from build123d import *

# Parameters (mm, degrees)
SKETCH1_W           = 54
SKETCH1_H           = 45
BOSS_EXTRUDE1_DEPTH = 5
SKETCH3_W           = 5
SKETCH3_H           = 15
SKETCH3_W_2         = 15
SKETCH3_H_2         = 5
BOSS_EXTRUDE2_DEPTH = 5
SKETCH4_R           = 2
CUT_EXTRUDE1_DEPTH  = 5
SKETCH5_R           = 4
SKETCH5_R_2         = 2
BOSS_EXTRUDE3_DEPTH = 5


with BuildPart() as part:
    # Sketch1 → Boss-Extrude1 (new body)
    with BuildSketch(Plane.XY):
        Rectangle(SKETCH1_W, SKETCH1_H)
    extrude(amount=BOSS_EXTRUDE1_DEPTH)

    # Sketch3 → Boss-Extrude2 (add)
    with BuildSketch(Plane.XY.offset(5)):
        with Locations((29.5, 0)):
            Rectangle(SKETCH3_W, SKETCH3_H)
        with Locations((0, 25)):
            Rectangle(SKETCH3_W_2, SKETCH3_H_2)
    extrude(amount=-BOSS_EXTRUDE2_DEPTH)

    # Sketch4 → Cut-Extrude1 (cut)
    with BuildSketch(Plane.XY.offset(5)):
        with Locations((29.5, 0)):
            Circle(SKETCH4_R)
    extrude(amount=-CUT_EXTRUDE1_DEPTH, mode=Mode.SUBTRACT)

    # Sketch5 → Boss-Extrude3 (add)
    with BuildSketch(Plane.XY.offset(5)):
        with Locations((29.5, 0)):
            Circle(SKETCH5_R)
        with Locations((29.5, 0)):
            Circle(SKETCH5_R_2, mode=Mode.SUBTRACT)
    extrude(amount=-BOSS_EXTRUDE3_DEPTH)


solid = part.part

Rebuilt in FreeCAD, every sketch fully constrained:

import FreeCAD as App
import Part
import Sketcher
from FreeCAD import Vector
Q = App.Units.Quantity

doc = App.newDocument("Part")
body = doc.addObject("PartDesign::Body", "Body")

sketch1 = body.newObject("Sketcher::SketchObject", "Sketch")
sketch1.AttachmentSupport = (doc.getObject("XY_Plane"), [""])
sketch1.MapMode = "FlatFace"
sketch1.addGeometry([
    Part.LineSegment(Vector(-27, 22, 0), Vector(-27, -22, 0)),
    Part.LineSegment(Vector(-27, -22, 0), Vector(27, -22, 0)),
    Part.LineSegment(Vector(27, -22, 0), Vector(27, 22, 0)),
    Part.LineSegment(Vector(27, 22, 0), Vector(-27, 22, 0)),
], False)
sketch1.addConstraint([
    Sketcher.Constraint("Coincident", 0, 2, 1, 1),
    Sketcher.Constraint("Coincident", 1, 2, 2, 1),
    Sketcher.Constraint("Coincident", 2, 2, 3, 1),
    Sketcher.Constraint("Coincident", 3, 2, 0, 1),
    Sketcher.Constraint("Vertical", 0),
    Sketcher.Constraint("Horizontal", 1),
    Sketcher.Constraint("Vertical", 2),
    Sketcher.Constraint("Horizontal", 3),
    Sketcher.Constraint("Symmetric", 0, 2, 2, 2, -1, 1),
    Sketcher.Constraint("DistanceX", 1, 1, 1, 2, Q("54 mm")),
    Sketcher.Constraint("DistanceY", 0, 2, 0, 1, Q("45 mm")),
])
pad1 = body.newObject("PartDesign::Pad", "Pad")
pad1.Profile = sketch1
pad1.Length = 5

sketch2 = body.newObject("Sketcher::SketchObject", "Sketch001")
sketch2.AttachmentSupport = (doc.getObject("XY_Plane"), [""])
sketch2.MapMode = "FlatFace"
sketch2.AttachmentOffset = App.Placement(Vector(0, 0, 5), App.Rotation())
sketch2.addGeometry([
    Part.LineSegment(Vector(27, 8, 0), Vector(27, -8, 0)),
    Part.LineSegment(Vector(27, -8, 0), Vector(32, -8, 0)),
    Part.LineSegment(Vector(32, -8, 0), Vector(32, 8, 0)),
    Part.LineSegment(Vector(32, 8, 0), Vector(27, 8, 0)),
    Part.LineSegment(Vector(-8, 28, 0), Vector(-8, 22, 0)),
    Part.LineSegment(Vector(-8, 22, 0), Vector(8, 22, 0)),
    Part.LineSegment(Vector(8, 22, 0), Vector(8, 28, 0)),
    Part.LineSegment(Vector(8, 28, 0), Vector(-8, 28, 0)),
], False)
sketch2.addConstraint([
    Sketcher.Constraint("Coincident", 0, 2, 1, 1),
    Sketcher.Constraint("Coincident", 1, 2, 2, 1),
    Sketcher.Constraint("Coincident", 2, 2, 3, 1),
    Sketcher.Constraint("Coincident", 3, 2, 0, 1),
    Sketcher.Constraint("Coincident", 4, 2, 5, 1),
    Sketcher.Constraint("Coincident", 5, 2, 6, 1),
    Sketcher.Constraint("Coincident", 6, 2, 7, 1),
    Sketcher.Constraint("Coincident", 7, 2, 4, 1),
    Sketcher.Constraint("Vertical", 0),
    Sketcher.Constraint("Horizontal", 1),
    Sketcher.Constraint("Vertical", 2),
    Sketcher.Constraint("Horizontal", 3),
    Sketcher.Constraint("Vertical", 4),
    Sketcher.Constraint("Horizontal", 5),
    Sketcher.Constraint("Vertical", 6),
    Sketcher.Constraint("Horizontal", 7),
    Sketcher.Constraint("Equal", 7, 0),
    Sketcher.Constraint("Equal", 3, 4),
    Sketcher.Constraint("DistanceX", 1, 1, 1, 2, Q("5 mm")),
    Sketcher.Constraint("DistanceX", 5, 1, 5, 2, Q("15 mm")),
    Sketcher.Constraint("DistanceX", -1, 1, 0, 2, Q("27 mm")),
    Sketcher.Constraint("DistanceY", 3, 2, 4, 2, Q("15 mm")),
    Sketcher.Constraint("DistanceY", 0, 2, -1, 1, Q("7.5 mm")),
    Sketcher.Constraint("DistanceX", 4, 2, -1, 1, Q("7.5 mm")),
])
pad2 = body.newObject("PartDesign::Pad", "Pad001")
pad2.Profile = sketch2
pad2.Length = 5
pad2.Reversed = True

sketch3 = body.newObject("Sketcher::SketchObject", "Sketch002")
sketch3.AttachmentSupport = (doc.getObject("XY_Plane"), [""])
sketch3.MapMode = "FlatFace"
sketch3.AttachmentOffset = App.Placement(Vector(0, 0, 5), App.Rotation())
sketch3.addGeometry(Part.Circle(Vector(29.5, 0, 0), Vector(0, 0, 1), 2), False)
sketch3.addConstraint([
    Sketcher.Constraint("PointOnObject", 0, 3, -1),
    Sketcher.Constraint("Diameter", 0, Q("4 mm")),
    Sketcher.Constraint("DistanceX", -1, 1, 0, 3, Q("29.5 mm")),
])
pocket1 = body.newObject("PartDesign::Pocket", "Pocket")
pocket1.Profile = sketch3
pocket1.Length = 5

sketch4 = body.newObject("Sketcher::SketchObject", "Sketch003")
sketch4.AttachmentSupport = (doc.getObject("XY_Plane"), [""])
sketch4.MapMode = "FlatFace"
sketch4.AttachmentOffset = App.Placement(Vector(0, 0, 5), App.Rotation())
sketch4.addGeometry([
    Part.Circle(Vector(29.5, 0, 0), Vector(0, 0, 1), 4),
    Part.Circle(Vector(29.5, 0, 0), Vector(0, 0, 1), 2),
], False)
sketch4.addConstraint([
    Sketcher.Constraint("Coincident", 1, 3, 0, 3),
    Sketcher.Constraint("PointOnObject", 0, 3, -1),
    Sketcher.Constraint("Diameter", 0, Q("8 mm")),
    Sketcher.Constraint("Diameter", 1, Q("4 mm")),
    Sketcher.Constraint("DistanceX", -1, 1, 0, 3, Q("29.5 mm")),
])
pad3 = body.newObject("PartDesign::Pad", "Pad002")
pad3.Profile = sketch4
pad3.Length = 5
pad3.Reversed = True

doc.recompute()
